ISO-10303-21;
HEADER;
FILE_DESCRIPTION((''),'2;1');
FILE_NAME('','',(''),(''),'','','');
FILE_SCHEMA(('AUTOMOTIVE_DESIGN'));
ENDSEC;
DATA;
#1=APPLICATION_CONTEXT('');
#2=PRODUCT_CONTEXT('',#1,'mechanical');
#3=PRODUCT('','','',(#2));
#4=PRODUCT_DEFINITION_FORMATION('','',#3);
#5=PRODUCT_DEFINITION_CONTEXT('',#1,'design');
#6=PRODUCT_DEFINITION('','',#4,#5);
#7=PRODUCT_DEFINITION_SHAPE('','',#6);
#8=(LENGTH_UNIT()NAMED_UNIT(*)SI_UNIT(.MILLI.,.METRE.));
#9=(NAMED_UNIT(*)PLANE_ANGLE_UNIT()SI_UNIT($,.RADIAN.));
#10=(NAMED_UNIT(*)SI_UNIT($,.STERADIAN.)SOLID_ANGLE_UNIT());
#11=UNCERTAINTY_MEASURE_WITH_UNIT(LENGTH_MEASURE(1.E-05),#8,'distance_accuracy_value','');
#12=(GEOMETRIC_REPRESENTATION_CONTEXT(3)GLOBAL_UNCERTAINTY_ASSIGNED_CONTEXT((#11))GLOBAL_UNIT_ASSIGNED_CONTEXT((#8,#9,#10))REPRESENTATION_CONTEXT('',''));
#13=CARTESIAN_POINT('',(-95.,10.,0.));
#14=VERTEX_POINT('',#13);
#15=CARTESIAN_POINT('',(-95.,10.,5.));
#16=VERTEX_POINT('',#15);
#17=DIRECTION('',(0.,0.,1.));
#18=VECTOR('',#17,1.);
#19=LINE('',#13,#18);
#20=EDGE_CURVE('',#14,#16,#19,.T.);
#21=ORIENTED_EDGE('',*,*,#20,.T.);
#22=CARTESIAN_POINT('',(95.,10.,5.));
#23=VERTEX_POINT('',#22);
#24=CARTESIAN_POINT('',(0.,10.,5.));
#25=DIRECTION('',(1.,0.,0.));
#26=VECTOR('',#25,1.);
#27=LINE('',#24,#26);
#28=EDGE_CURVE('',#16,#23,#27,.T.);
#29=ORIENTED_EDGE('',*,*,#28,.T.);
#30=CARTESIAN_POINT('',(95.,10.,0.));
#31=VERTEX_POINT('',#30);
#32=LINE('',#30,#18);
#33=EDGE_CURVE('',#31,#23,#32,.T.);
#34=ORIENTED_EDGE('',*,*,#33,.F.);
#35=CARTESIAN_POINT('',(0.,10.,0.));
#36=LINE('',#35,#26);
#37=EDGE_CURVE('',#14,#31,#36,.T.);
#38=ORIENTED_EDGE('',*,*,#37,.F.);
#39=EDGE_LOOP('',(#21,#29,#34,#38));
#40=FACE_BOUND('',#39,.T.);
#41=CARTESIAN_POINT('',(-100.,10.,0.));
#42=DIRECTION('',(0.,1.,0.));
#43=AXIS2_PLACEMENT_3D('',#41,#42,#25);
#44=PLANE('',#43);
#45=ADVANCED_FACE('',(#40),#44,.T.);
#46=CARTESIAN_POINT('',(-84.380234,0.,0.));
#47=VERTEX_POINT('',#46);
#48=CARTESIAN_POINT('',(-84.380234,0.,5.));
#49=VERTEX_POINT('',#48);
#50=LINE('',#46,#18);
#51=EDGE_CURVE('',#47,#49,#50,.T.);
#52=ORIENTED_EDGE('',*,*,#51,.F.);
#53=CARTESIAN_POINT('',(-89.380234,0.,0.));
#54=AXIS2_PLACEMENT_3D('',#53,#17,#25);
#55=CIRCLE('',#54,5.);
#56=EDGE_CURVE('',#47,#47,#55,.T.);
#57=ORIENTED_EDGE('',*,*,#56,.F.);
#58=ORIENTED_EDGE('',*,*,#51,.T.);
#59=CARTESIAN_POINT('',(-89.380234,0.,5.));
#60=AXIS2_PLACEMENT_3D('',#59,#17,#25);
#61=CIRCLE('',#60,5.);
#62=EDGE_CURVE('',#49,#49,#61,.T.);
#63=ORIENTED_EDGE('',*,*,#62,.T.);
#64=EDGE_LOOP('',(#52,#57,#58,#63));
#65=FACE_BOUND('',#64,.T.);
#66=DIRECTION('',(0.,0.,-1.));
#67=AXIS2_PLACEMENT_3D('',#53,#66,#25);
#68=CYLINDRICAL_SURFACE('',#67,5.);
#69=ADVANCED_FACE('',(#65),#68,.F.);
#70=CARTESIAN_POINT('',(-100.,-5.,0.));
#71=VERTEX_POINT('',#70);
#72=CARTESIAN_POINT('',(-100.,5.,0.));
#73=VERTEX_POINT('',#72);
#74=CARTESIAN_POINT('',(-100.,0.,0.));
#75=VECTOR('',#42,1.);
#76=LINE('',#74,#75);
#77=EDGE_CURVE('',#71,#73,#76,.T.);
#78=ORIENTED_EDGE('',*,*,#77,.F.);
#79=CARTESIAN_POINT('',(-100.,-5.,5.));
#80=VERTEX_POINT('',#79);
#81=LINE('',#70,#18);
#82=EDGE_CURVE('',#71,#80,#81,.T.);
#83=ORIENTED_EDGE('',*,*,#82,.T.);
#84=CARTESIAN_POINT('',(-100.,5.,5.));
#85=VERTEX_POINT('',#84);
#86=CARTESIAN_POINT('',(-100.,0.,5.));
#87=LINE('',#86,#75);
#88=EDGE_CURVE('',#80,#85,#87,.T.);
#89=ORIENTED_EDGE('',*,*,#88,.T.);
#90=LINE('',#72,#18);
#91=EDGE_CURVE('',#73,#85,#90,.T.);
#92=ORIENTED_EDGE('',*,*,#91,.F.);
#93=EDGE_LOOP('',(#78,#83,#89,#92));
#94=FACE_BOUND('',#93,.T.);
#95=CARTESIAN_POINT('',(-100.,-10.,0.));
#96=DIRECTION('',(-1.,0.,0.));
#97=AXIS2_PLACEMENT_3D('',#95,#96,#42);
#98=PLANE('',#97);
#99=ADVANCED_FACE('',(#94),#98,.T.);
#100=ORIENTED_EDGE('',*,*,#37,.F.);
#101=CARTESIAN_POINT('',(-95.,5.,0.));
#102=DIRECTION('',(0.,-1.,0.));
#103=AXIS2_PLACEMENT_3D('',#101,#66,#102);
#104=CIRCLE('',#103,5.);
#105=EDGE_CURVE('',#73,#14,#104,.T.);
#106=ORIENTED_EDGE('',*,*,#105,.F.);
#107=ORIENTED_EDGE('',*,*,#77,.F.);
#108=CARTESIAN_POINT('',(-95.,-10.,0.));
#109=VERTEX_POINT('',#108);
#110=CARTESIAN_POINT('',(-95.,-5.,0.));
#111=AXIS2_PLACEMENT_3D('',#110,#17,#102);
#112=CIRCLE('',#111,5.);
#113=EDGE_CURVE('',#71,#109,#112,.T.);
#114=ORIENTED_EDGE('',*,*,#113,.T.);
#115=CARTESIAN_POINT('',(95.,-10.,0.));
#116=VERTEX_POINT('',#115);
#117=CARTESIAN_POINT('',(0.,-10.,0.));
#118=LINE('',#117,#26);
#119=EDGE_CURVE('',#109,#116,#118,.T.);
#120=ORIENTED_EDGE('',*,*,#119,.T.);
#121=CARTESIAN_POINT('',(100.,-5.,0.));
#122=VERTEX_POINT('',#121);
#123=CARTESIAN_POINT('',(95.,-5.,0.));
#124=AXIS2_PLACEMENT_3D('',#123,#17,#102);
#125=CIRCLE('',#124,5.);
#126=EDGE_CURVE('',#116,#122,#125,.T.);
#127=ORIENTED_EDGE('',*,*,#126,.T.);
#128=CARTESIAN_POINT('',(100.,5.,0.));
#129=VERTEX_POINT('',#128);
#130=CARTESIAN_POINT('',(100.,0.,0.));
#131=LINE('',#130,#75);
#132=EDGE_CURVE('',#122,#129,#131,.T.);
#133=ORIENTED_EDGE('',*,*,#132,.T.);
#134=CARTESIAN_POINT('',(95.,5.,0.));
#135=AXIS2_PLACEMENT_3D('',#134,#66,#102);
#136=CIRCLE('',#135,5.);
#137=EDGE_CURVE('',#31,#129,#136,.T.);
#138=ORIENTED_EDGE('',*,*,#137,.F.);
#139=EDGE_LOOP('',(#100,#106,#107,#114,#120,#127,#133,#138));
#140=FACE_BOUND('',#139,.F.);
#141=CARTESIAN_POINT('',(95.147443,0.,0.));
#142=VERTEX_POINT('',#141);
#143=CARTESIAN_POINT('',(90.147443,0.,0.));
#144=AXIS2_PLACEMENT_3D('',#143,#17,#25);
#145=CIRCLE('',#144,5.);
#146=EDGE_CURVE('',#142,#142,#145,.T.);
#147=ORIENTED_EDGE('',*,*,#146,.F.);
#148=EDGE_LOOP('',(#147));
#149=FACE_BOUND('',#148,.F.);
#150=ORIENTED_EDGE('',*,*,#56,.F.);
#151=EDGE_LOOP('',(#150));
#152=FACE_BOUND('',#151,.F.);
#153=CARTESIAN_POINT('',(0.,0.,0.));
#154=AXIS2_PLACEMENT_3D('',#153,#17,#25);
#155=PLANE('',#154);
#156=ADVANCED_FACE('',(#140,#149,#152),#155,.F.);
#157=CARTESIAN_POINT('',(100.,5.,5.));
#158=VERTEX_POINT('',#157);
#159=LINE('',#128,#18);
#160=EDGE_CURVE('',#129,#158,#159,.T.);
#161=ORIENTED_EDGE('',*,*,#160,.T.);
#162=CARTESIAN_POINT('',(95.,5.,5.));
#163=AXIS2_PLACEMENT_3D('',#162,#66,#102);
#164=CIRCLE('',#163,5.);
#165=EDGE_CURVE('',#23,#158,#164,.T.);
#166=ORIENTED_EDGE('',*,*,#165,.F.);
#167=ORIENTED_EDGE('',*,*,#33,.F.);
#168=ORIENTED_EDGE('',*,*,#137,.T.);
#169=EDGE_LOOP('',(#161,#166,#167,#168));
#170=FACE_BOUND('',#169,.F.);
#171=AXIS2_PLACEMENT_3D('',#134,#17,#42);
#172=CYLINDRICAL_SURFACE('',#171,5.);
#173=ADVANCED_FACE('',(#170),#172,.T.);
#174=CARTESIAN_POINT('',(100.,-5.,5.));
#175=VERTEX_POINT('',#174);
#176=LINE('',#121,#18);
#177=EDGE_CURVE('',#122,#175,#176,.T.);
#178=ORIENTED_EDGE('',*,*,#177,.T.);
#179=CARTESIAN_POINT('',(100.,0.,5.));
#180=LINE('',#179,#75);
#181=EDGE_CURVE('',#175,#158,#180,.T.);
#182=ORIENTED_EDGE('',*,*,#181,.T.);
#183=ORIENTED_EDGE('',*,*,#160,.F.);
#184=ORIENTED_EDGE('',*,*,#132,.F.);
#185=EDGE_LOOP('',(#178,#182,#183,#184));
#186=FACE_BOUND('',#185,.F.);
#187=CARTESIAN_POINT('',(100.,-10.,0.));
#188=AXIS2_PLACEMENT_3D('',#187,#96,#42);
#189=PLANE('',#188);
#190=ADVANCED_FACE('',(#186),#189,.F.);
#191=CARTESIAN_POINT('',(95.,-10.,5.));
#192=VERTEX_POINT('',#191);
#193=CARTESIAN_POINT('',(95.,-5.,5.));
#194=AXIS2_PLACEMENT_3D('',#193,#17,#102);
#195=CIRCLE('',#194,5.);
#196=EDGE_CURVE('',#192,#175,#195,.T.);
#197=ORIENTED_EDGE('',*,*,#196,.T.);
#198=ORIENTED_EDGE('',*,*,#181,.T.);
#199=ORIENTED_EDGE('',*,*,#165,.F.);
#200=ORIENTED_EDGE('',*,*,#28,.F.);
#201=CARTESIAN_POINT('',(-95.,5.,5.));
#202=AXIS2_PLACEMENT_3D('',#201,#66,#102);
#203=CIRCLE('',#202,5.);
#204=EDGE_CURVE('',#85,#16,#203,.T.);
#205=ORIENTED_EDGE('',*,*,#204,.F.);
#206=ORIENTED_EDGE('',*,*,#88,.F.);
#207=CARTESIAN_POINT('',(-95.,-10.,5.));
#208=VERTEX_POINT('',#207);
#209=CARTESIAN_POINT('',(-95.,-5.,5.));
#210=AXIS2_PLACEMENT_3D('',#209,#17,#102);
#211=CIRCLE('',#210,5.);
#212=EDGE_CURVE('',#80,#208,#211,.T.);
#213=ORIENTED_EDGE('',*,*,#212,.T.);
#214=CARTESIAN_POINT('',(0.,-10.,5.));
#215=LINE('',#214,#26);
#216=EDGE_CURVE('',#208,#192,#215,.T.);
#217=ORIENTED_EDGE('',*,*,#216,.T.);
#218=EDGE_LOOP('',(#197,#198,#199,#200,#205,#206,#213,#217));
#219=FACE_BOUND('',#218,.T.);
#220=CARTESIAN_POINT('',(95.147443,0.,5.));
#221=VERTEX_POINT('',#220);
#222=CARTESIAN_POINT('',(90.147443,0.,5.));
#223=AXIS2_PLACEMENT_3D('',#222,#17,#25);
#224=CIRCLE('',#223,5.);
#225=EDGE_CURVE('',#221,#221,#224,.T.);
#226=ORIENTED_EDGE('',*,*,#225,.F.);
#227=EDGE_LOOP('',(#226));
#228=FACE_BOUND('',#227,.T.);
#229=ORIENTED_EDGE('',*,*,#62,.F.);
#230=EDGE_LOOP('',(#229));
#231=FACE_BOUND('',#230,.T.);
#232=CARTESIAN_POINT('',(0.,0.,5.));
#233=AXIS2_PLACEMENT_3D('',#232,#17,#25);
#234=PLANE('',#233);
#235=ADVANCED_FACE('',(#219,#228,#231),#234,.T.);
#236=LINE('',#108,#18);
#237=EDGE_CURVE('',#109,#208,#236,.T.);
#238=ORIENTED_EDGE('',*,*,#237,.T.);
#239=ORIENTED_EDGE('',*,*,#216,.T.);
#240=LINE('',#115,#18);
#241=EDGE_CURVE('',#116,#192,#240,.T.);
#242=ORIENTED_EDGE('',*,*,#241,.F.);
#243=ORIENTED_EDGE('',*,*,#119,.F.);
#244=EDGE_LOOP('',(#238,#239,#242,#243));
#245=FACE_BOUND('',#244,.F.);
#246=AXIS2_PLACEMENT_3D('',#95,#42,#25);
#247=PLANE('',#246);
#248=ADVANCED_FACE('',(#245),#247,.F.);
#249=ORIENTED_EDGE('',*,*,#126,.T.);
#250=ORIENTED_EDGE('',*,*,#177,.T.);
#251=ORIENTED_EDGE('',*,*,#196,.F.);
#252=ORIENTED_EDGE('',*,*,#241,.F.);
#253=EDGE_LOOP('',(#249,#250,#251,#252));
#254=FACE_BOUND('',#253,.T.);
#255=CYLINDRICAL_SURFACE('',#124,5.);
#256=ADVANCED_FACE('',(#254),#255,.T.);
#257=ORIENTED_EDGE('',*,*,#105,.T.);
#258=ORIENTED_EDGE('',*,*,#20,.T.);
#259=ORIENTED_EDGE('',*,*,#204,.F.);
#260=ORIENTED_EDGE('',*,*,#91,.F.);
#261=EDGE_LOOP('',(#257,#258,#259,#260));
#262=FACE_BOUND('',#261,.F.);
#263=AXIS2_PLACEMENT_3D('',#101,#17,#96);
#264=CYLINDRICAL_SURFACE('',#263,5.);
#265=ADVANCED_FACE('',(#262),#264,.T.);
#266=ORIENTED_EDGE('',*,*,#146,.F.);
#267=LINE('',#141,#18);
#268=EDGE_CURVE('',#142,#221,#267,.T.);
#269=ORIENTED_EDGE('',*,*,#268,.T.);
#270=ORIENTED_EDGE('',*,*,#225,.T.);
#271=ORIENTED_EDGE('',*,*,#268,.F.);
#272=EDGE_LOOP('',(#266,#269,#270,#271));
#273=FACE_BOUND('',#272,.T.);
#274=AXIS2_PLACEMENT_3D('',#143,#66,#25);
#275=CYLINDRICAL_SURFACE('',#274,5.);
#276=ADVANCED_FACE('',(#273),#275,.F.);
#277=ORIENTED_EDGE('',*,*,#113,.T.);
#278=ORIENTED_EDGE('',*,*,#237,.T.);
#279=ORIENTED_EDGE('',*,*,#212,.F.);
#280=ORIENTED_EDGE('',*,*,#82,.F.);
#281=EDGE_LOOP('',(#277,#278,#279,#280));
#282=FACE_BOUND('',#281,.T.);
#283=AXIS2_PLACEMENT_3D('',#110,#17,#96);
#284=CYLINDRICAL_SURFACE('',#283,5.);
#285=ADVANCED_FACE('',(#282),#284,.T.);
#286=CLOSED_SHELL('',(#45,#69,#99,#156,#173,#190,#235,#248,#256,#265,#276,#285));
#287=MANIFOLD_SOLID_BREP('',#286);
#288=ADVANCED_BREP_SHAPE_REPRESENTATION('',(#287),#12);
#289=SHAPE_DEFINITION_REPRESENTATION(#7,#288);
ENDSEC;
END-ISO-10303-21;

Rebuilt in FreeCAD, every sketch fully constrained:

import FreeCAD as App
import Part
import Sketcher

V = App.Vector
Q = App.Units.Quantity


def edges_at(feature, points):
    """Names of the edges that pass closest to the given points."""
    edges = feature.Shape.Edges
    near = lambda p: min(range(len(edges)), key=lambda i: edges[i].distToShape(Part.Vertex(*p))[0])
    return sorted({f"Edge{near(p) + 1}" for p in points})


def add_polygon(sketch, points):
    """Adds a closed chain of lines whose ends are joined by coincident constraints."""
    first, n = sketch.GeometryCount, len(points)
    for a, b in zip(points, points[1:] + points[:1]):
        sketch.addGeometry(Part.LineSegment(App.Vector(*a, 0), App.Vector(*b, 0)), False)
    for i in range(n):
        sketch.addConstraint(Sketcher.Constraint("Coincident", first + i, 2, first + (i + 1) % n, 1))

doc = App.newDocument("Part")
params = doc.addObject("Spreadsheet::Sheet", "Params")
for row, (alias, value) in enumerate([
    ("sketch1_diameter", "10 mm"),
    ("sketch1_width", "200 mm"),
    ("sketch1_height", "20 mm"),
    ("pad1_length", "5 mm"),
    ("fillet_radius", "5 mm"),
], start=1):
    params.set(f"A{row}", alias)
    params.set(f"B{row}", "=" + value)
    params.setAlias(f"B{row}", alias)

body = doc.addObject("PartDesign::Body", "Body")

# Sketch on XY plane
sketch1 = doc.addObject("Sketcher::SketchObject", "Sketch")
body.addObject(sketch1)
sketch1.AttachmentSupport = (doc.XY_Plane, [""])
sketch1.MapMode = "FlatFace"
add_polygon(sketch1, [(-100, 10), (-100, -10), (100, -10), (100, 10)])  # lines 0-3
sketch1.addGeometry(Part.Circle(V(-89, 0, 0), V(0, 0, 1), 5), False)  # 4
sketch1.addGeometry(Part.Circle(V(90, 0, 0), V(0, 0, 1), 5), False)  # 5
sketch1.addConstraint([
    Sketcher.Constraint("Vertical", 0),
    Sketcher.Constraint("Horizontal", 1),
    Sketcher.Constraint("Vertical", 2),
    Sketcher.Constraint("Horizontal", 3),
    Sketcher.Constraint("Equal", 4, 5),
    Sketcher.Constraint("Symmetric", 0, 2, 2, 2, -1, 1),
    Sketcher.Constraint("PointOnObject", 4, 3, -1),
    Sketcher.Constraint("PointOnObject", 5, 3, -1),
    Sketcher.Constraint("Diameter", 4, Q("10 mm")),
    Sketcher.Constraint("DistanceX", 1, 1, 1, 2, Q("200 mm")),
    Sketcher.Constraint("DistanceY", 0, 2, 0, 1, Q("20 mm")),
    Sketcher.Constraint("DistanceX", 4, 3, -1, 1, Q("89.380234 mm")),
    Sketcher.Constraint("DistanceX", -1, 1, 5, 3, Q("90.147443 mm")),
])
sketch1.setExpression("Constraints[12]", "Params.sketch1_diameter")
sketch1.setExpression("Constraints[13]", "Params.sketch1_width")
sketch1.setExpression("Constraints[14]", "Params.sketch1_height")
pad1 = doc.addObject("PartDesign::Pad", "Pad")
body.addObject(pad1)
pad1.Profile = sketch1
pad1.setExpression("Length", "Params.pad1_length")
doc.recompute()

fillet = doc.addObject("PartDesign::Fillet", "Fillet")
body.addObject(fillet)
fillet.Base = (pad1, edges_at(pad1, [
    (-100, -10, 2.5),
    (100, -10, 2.5),
    (100, 10, 2.5),
    (-100, 10, 2.5),
]))
fillet.setExpression("Radius", "Params.fillet_radius")

doc.recompute()
